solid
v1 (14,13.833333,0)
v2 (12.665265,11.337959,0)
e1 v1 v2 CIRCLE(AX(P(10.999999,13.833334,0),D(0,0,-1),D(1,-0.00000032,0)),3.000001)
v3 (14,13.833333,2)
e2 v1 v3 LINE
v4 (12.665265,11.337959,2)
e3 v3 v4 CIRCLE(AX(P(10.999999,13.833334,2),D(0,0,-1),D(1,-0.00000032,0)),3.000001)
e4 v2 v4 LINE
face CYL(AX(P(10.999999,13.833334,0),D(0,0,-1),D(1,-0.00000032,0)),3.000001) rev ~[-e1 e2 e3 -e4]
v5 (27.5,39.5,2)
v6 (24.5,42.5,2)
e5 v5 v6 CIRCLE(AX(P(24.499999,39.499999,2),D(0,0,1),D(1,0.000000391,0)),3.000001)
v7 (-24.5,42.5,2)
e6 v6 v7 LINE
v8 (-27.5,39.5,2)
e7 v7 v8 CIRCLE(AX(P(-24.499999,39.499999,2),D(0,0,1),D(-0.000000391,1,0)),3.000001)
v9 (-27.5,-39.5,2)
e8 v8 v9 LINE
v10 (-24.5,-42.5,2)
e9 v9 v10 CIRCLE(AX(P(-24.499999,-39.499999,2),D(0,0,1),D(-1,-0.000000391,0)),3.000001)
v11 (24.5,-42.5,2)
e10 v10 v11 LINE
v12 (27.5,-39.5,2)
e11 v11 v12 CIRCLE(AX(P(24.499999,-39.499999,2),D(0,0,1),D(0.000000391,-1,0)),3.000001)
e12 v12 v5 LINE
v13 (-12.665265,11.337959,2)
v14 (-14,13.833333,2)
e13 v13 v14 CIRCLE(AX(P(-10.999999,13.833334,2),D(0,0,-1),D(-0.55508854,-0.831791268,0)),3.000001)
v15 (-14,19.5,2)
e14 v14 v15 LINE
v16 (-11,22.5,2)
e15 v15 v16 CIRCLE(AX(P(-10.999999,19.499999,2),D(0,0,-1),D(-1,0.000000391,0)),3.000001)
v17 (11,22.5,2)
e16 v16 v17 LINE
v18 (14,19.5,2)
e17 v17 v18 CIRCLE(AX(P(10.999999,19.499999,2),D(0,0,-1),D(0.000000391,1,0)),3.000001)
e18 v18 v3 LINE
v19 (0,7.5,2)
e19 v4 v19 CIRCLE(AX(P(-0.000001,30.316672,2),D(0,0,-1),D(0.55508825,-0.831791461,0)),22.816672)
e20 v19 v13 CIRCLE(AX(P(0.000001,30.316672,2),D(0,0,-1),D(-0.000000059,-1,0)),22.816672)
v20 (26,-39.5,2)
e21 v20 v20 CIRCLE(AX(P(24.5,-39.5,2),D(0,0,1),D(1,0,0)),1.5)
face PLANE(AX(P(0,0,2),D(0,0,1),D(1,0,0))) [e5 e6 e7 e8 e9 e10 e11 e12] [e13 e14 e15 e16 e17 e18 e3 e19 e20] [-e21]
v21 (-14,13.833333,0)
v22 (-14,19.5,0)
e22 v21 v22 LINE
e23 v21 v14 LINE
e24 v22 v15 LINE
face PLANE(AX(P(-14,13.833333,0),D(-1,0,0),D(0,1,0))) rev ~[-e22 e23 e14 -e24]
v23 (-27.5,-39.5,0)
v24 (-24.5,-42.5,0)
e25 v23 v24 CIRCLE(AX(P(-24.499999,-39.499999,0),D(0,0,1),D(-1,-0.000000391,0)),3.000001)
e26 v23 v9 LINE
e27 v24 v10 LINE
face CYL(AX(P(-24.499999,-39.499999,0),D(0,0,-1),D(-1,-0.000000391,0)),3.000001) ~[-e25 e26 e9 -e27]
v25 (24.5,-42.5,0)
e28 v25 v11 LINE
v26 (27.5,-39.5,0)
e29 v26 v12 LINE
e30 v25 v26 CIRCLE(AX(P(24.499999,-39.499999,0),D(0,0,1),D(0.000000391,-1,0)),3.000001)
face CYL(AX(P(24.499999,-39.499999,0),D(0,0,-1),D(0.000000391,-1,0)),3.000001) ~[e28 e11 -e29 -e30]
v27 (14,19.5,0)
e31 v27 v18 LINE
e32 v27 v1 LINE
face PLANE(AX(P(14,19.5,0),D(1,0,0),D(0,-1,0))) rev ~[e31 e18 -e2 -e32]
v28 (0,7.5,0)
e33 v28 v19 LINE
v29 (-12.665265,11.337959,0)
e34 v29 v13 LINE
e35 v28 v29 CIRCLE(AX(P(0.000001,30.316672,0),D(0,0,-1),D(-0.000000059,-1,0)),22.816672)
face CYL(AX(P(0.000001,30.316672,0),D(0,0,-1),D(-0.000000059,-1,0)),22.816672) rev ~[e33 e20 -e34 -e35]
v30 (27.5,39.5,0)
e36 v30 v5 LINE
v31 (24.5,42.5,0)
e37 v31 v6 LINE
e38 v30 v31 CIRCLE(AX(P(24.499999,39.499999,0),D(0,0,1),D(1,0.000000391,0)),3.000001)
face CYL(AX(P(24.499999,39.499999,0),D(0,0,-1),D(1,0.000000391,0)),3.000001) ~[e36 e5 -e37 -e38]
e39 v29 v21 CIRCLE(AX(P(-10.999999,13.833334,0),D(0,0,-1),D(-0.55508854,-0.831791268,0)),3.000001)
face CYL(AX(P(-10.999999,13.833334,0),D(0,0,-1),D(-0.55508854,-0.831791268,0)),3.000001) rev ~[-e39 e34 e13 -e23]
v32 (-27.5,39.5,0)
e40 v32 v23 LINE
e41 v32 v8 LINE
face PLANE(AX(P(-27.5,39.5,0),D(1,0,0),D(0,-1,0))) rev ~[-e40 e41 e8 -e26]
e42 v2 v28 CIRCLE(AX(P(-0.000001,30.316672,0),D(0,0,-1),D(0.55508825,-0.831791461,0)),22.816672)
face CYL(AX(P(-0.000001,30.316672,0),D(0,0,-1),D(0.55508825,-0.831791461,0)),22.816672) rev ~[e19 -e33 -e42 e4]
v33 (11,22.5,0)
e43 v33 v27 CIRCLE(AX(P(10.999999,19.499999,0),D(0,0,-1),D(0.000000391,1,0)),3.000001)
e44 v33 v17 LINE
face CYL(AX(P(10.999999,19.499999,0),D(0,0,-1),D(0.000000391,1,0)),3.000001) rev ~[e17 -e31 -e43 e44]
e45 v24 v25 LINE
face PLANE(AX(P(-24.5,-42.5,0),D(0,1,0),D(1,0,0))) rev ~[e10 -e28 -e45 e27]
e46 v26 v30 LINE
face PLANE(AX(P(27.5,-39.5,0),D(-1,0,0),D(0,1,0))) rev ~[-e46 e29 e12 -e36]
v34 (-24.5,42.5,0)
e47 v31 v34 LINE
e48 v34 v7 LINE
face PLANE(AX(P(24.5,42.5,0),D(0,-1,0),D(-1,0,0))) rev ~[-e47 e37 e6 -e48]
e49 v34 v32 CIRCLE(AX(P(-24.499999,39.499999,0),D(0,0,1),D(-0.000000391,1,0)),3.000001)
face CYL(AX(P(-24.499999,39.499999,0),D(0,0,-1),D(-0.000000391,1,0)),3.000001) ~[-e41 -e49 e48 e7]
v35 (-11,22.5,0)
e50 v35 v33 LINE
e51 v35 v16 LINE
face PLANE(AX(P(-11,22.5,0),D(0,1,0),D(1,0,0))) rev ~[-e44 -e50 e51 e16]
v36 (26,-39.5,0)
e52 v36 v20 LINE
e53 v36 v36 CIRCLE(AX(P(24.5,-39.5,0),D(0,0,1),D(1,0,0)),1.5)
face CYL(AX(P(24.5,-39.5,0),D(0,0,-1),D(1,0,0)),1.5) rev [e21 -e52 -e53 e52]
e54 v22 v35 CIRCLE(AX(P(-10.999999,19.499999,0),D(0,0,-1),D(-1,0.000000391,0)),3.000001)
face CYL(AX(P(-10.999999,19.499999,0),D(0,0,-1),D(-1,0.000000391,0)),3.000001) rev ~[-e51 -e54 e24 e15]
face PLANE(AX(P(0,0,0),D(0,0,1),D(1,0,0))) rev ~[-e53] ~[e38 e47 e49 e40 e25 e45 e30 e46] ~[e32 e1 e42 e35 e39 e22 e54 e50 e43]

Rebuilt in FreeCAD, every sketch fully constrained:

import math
import FreeCAD as App
import Part
import Sketcher
from FreeCAD import Vector
Q = App.Units.Quantity

doc = App.newDocument("Part")
params = doc.addObject("Spreadsheet::Sheet", "Params")
for row, (alias, value) in enumerate([
    ("sketch1_diameter", "3 mm"),
    ("sketch1_radius", "3.000001 mm"),
    ("sketch1_width", "49 mm"),
    ("sketch1_width2", "22 mm"),
    ("sketch1_height", "79 mm"),
    ("pad1_length", "2 mm"),
], start=1):
    params.set(f"A{row}", alias)
    params.set(f"B{row}", "=" + value)
    params.setAlias(f"B{row}", alias)

body = doc.addObject("PartDesign::Body", "Body")

# Sketch on XY plane
sketch1 = body.newObject("Sketcher::SketchObject", "Sketch")
sketch1.AttachmentSupport = (doc.getObject("XY_Plane"), [""])
sketch1.MapMode = "FlatFace"
sketch1.addGeometry([
    Part.ArcOfCircle(Part.Circle(Vector(24.499999, 39.499999, 0), Vector(0, 0, 1), 3.000001), math.radians(0.000022), math.radians(89.999978)),  # 0
    Part.LineSegment(Vector(24.5, 42.5, 0), Vector(-24.5, 42.5, 0)),  # 1
    Part.ArcOfCircle(Part.Circle(Vector(-24.499999, 39.499999, 0), Vector(0, 0, 1), 3.000001), math.radians(90.000022), math.radians(179.999978)),  # 2
    Part.LineSegment(Vector(-27.5, 39.5, 0), Vector(-27.5, -39.5, 0)),  # 3
    Part.ArcOfCircle(Part.Circle(Vector(-24.499999, -39.499999, 0), Vector(0, 0, 1), 3.000001), math.radians(-179.999978), math.radians(-90.000022)),  # 4
    Part.LineSegment(Vector(-24.5, -42.5, 0), Vector(24.5, -42.5, 0)),  # 5
    Part.ArcOfCircle(Part.Circle(Vector(24.499999, -39.499999, 0), Vector(0, 0, 1), 3.000001), math.radians(-89.999978), math.radians(-0.000022)),  # 6
    Part.LineSegment(Vector(27.5, -39.5, 0), Vector(27.5, 39.5, 0)),  # 7
    Part.Circle(Vector(24.5, -39.5, 0), Vector(0, 0, 1), 1.5),  # 8
    Part.ArcOfCircle(Part.Circle(Vector(10.999999, 19.499999, 0), Vector(0, 0, 1), 3.000001), math.radians(0.000022), math.radians(89.999978)),  # 9
    Part.LineSegment(Vector(14, 19.5, 0), Vector(14, 13.833333, 0)),  # 10
    Part.ArcOfCircle(Part.Circle(Vector(10.999999, 13.833334, 0), Vector(0, 0, 1), 3.000001), math.radians(-56.283187), math.radians(-0.000018)),  # 11
    Part.ArcOfCircle(Part.Circle(Vector(-0.000001, 30.316672, 0), Vector(0, 0, 1), 22.816672), math.radians(-89.999997), math.radians(-56.283207)),  # 12
    Part.ArcOfCircle(Part.Circle(Vector(0.000001, 30.316672, 0), Vector(0, 0, 1), 22.816672), math.radians(-123.716793), math.radians(-90.000003)),  # 13
    Part.ArcOfCircle(Part.Circle(Vector(-10.999999, 13.833334, 0), Vector(0, 0, 1), 3.000001), math.radians(-179.999982), math.radians(-123.716813)),  # 14
    Part.LineSegment(Vector(-14, 13.833333, 0), Vector(-14, 19.5, 0)),  # 15
    Part.ArcOfCircle(Part.Circle(Vector(-10.999999, 19.499999, 0), Vector(0, 0, 1), 3.000001), math.radians(90.000022), math.radians(179.999978)),  # 16
    Part.LineSegment(Vector(-11, 22.5, 0), Vector(11, 22.5, 0)),  # 17
], False)
sketch1.addConstraint([
    Sketcher.Constraint("Tangent", 0, 2, 1, 1),
    Sketcher.Constraint("Tangent", 1, 2, 2, 1),
    Sketcher.Constraint("Tangent", 2, 2, 3, 1),
    Sketcher.Constraint("Tangent", 3, 2, 4, 1),
    Sketcher.Constraint("Tangent", 4, 2, 5, 1),
    Sketcher.Constraint("Tangent", 5, 2, 6, 1),
    Sketcher.Constraint("Tangent", 6, 2, 7, 1),
    Sketcher.Constraint("Tangent", 7, 2, 0, 1),
    Sketcher.Constraint("Tangent", 9, 1, 10, 1),
    Sketcher.Constraint("Tangent", 10, 2, 11, 2),
    Sketcher.Constraint("Tangent", 11, 1, 12, 2),
    Sketcher.Constraint("Tangent", 12, 1, 13, 2),
    Sketcher.Constraint("Tangent", 13, 1, 14, 2),
    Sketcher.Constraint("Tangent", 14, 1, 15, 1),
    Sketcher.Constraint("Tangent", 15, 2, 16, 2),
    Sketcher.Constraint("Tangent", 16, 1, 17, 1),
    Sketcher.Constraint("Tangent", 17, 2, 9, 2),
    Sketcher.Constraint("Horizontal", 1),
    Sketcher.Constraint("Vertical", 3),
    Sketcher.Constraint("Horizontal", 5),
    Sketcher.Constraint("Vertical", 7),
    Sketcher.Constraint("Vertical", 10),
    Sketcher.Constraint("Vertical", 15),
    Sketcher.Constraint("Horizontal", 17),
    Sketcher.Constraint("Coincident", 8, 3, 6, 3),
    Sketcher.Constraint("Equal", 0, 2),
    Sketcher.Constraint("Equal", 2, 4),
    Sketcher.Constraint("Equal", 4, 6),
    Sketcher.Constraint("Equal", 6, 9),
    Sketcher.Constraint("Equal", 9, 11),
    Sketcher.Constraint("Equal", 12, 13),
    Sketcher.Constraint("Equal", 11, 14),
    Sketcher.Constraint("Equal", 14, 16),
    Sketcher.Constraint("Symmetric", 0, 3, 4, 3, -1, 1),
    Sketcher.Constraint("Symmetric", 11, 3, 14, 3, -2),
    Sketcher.Constraint("PointOnObject", 12, 1, -2),
    Sketcher.Constraint("Diameter", 8, Q("3 mm")),
    Sketcher.Constraint("Radius", 0, Q("3.000001 mm")),
    Sketcher.Constraint("DistanceX", 1, 2, 1, 1, Q("49 mm")),
    Sketcher.Constraint("DistanceX", 17, 1, 17, 2, Q("22 mm")),
    Sketcher.Constraint("DistanceY", 3, 2, 3, 1, Q("79 mm")),
    Sketcher.Constraint("DistanceY", 9, 3, 0, 3, Q("20 mm")),
    Sketcher.Constraint("DistanceY", 12, 1, 9, 3, Q("11.999999 mm")),
    Sketcher.Constraint("Radius", 12, Q("22.816672 mm")),
])
sketch1.setExpression("Constraints[36]", "Params.sketch1_diameter")
sketch1.setExpression("Constraints[37]", "Params.sketch1_radius")
sketch1.setExpression("Constraints[38]", "Params.sketch1_width")
sketch1.setExpression("Constraints[39]", "Params.sketch1_width2")
sketch1.setExpression("Constraints[40]", "Params.sketch1_height")
pad1 = body.newObject("PartDesign::Pad", "Pad")
pad1.Profile = sketch1
pad1.setExpression("Length", "Params.pad1_length")

doc.recompute()
